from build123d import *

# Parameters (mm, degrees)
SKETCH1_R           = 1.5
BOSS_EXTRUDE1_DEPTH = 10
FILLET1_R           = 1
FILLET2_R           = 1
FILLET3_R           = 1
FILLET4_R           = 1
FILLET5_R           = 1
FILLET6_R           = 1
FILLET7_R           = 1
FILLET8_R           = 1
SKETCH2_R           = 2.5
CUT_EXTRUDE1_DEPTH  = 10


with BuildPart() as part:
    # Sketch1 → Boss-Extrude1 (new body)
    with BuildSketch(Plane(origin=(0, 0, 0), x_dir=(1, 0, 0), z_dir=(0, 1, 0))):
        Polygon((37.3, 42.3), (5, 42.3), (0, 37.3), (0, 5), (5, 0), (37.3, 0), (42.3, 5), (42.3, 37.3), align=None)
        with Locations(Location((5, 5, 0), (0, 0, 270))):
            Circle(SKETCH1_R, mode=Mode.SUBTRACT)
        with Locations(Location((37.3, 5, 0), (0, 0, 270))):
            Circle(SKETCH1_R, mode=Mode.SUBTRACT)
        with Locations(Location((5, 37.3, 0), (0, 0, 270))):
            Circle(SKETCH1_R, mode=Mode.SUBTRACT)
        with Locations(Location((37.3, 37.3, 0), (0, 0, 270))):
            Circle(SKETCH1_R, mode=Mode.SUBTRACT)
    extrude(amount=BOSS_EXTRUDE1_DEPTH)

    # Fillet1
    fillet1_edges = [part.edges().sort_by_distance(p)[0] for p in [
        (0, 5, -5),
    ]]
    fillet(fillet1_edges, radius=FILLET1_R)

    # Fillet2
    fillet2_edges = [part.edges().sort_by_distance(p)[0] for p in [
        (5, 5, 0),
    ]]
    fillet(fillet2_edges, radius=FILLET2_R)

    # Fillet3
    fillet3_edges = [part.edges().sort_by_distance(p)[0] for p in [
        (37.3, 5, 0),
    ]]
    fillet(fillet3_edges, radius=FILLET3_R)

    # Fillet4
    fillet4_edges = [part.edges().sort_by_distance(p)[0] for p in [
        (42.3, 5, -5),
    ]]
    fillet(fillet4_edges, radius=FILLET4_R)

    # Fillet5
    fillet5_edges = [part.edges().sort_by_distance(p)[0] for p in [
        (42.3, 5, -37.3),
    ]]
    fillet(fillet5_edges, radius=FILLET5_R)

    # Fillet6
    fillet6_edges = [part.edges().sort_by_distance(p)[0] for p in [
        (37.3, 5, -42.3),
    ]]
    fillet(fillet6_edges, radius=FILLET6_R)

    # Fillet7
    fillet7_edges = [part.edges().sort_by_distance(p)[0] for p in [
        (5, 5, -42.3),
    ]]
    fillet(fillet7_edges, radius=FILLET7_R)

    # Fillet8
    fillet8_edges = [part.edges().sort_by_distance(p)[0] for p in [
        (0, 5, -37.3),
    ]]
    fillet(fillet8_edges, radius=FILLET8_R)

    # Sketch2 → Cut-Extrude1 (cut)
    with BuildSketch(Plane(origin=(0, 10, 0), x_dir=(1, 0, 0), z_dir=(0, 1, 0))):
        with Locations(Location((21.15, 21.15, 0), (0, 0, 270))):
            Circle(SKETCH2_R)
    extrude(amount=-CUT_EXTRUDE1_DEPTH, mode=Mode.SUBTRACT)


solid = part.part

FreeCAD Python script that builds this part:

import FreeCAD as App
import Part
import Sketcher

V = App.Vector
Q = App.Units.Quantity


def edges_at(feature, points):
    """Names of the edges that pass closest to the given points."""
    edges = feature.Shape.Edges
    near = lambda p: min(range(len(edges)), key=lambda i: edges[i].distToShape(Part.Vertex(*p))[0])
    return sorted({f"Edge{near(p) + 1}" for p in points})

doc = App.newDocument("Part")
body = doc.addObject("PartDesign::Body", "Body")

# Sketch on XZ plane
sketch1 = doc.addObject("Sketcher::SketchObject", "Sketch")
body.addObject(sketch1)
sketch1.AttachmentSupport = (doc.XZ_Plane, [""])
sketch1.MapMode = "FlatFace"
sketch1.addGeometry([
    Part.LineSegment(V(37.3, -42.3, 0), V(5, -42.3, 0)),  # 0
    Part.LineSegment(V(5, -42.3, 0), V(0, -37.3, 0)),  # 1
    Part.LineSegment(V(0, -37.3, 0), V(0, -5, 0)),  # 2
    Part.LineSegment(V(0, -5, 0), V(5, 0, 0)),  # 3
    Part.LineSegment(V(5, 0, 0), V(37.3, 0, 0)),  # 4
    Part.LineSegment(V(37.3, 0, 0), V(42.3, -5, 0)),  # 5
    Part.LineSegment(V(42.3, -5, 0), V(42.3, -37.3, 0)),  # 6
    Part.LineSegment(V(42.3, -37.3, 0), V(37.3, -42.3, 0)),  # 7
    Part.Circle(V(5, -5, 0), V(0, 0, 1), 1.5),  # 8
    Part.Circle(V(37.3, -5, 0), V(0, 0, 1), 1.5),  # 9
    Part.Circle(V(5, -37.3, 0), V(0, 0, 1), 1.5),  # 10
    Part.Circle(V(37.3, -37.3, 0), V(0, 0, 1), 1.5),  # 11
], False)
sketch1.addConstraint([
    Sketcher.Constraint("Coincident", 0, 2, 1, 1),
    Sketcher.Constraint("Coincident", 1, 2, 2, 1),
    Sketcher.Constraint("Coincident", 2, 2, 3, 1),
    Sketcher.Constraint("Coincident", 3, 2, 4, 1),
    Sketcher.Constraint("Coincident", 4, 2, 5, 1),
    Sketcher.Constraint("Coincident", 5, 2, 6, 1),
    Sketcher.Constraint("Coincident", 6, 2, 7, 1),
    Sketcher.Constraint("Coincident", 7, 2, 0, 1),
    Sketcher.Constraint("Horizontal", 0),
    Sketcher.Constraint("Vertical", 2),
    Sketcher.Constraint("Horizontal", 4),
    Sketcher.Constraint("Vertical", 6),
    Sketcher.Constraint("Equal", 8, 9),
    Sketcher.Constraint("Equal", 9, 10),
    Sketcher.Constraint("Equal", 10, 11),
    Sketcher.Constraint("PointOnObject", 1, 2, -2),
    Sketcher.Constraint("PointOnObject", 3, 2, -1),
    Sketcher.Constraint("Perpendicular", 1, 3),
    Sketcher.Constraint("Perpendicular", 3, 5),
    Sketcher.Constraint("Perpendicular", 5, 7),
    Sketcher.Constraint("Horizontal", 8, 3, 9, 3),
    Sketcher.Constraint("Horizontal", 10, 3, 11, 3),
    Sketcher.Constraint("Horizontal", 11, 3, 1, 2),
    Sketcher.Constraint("Horizontal", 9, 3, 2, 2),
    Sketcher.Constraint("Horizontal", 2, 2, 5, 2),
    Sketcher.Constraint("Horizontal", 1, 2, 6, 2),
    Sketcher.Constraint("Vertical", 8, 3, 10, 3),
    Sketcher.Constraint("Vertical", 9, 3, 11, 3),
    Sketcher.Constraint("Vertical", 10, 3, 0, 2),
    Sketcher.Constraint("Vertical", 0, 2, 3, 2),
    Sketcher.Constraint("Vertical", 11, 3, 4, 2),
    Sketcher.Constraint("Vertical", 4, 2, 7, 2),
    Sketcher.Constraint("Equal", 4, 2),
    Sketcher.Constraint("Diameter", 8, Q("3 mm")),
    Sketcher.Constraint("DistanceX", 0, 2, 0, 1, Q("32.3 mm")),
    Sketcher.Constraint("DistanceX", -1, 1, 8, 3, Q("5 mm")),
])
pad1 = doc.addObject("PartDesign::Pad", "Pad")
body.addObject(pad1)
pad1.Profile = sketch1
pad1.Length = 10
pad1.Reversed = True
doc.recompute()

fillet = doc.addObject("PartDesign::Fillet", "Fillet")
body.addObject(fillet)
fillet.Base = (pad1, edges_at(pad1, [(0, 5, -5)]))
fillet.Radius = 1
doc.recompute()

fillet2 = doc.addObject("PartDesign::Fillet", "Fillet001")
body.addObject(fillet2)
fillet2.Base = (fillet, edges_at(fillet, [(5, 5, 0)]))
fillet2.Radius = 1
doc.recompute()

fillet3 = doc.addObject("PartDesign::Fillet", "Fillet002")
body.addObject(fillet3)
fillet3.Base = (fillet2, edges_at(fillet2, [(37.3, 5, 0)]))
fillet3.Radius = 1
doc.recompute()

fillet4 = doc.addObject("PartDesign::Fillet", "Fillet003")
body.addObject(fillet4)
fillet4.Base = (fillet3, edges_at(fillet3, [(42.3, 5, -5)]))
fillet4.Radius = 1
doc.recompute()

fillet5 = doc.addObject("PartDesign::Fillet", "Fillet004")
body.addObject(fillet5)
fillet5.Base = (fillet4, edges_at(fillet4, [(42.3, 5, -37.3)]))
fillet5.Radius = 1
doc.recompute()

fillet6 = doc.addObject("PartDesign::Fillet", "Fillet005")
body.addObject(fillet6)
fillet6.Base = (fillet5, edges_at(fillet5, [(37.3, 5, -42.3)]))
fillet6.Radius = 1
doc.recompute()

fillet7 = doc.addObject("PartDesign::Fillet", "Fillet006")
body.addObject(fillet7)
fillet7.Base = (fillet6, edges_at(fillet6, [(5, 5, -42.3)]))
fillet7.Radius = 1
doc.recompute()

fillet8 = doc.addObject("PartDesign::Fillet", "Fillet007")
body.addObject(fillet8)
fillet8.Base = (fillet7, edges_at(fillet7, [(0, 5, -37.3)]))
fillet8.Radius = 1

# Sketch on XZ plane
sketch2 = doc.addObject("Sketcher::SketchObject", "Sketch001")
body.addObject(sketch2)
sketch2.AttachmentSupport = (doc.XZ_Plane, [""])
sketch2.MapMode = "FlatFace"
sketch2.AttachmentOffset = App.Placement(V(0, 0, -10), App.Rotation())
sketch2.addGeometry(Part.Circle(V(21.1, -21.1, 0), V(0, 0, 1), 2.5), False)
sketch2.addConstraint([
    Sketcher.Constraint("Diameter", 0, Q("5 mm")),
    Sketcher.Constraint("DistanceX", -1, 1, 0, 3, Q("21.15 mm")),
    Sketcher.Constraint("DistanceY", 0, 3, -1, 1, Q("21.15 mm")),
])
pocket1 = doc.addObject("PartDesign::Pocket", "Pocket")
body.addObject(pocket1)
pocket1.Profile = sketch2
pocket1.Length = 10
pocket1.Reversed = True

doc.recompute()
